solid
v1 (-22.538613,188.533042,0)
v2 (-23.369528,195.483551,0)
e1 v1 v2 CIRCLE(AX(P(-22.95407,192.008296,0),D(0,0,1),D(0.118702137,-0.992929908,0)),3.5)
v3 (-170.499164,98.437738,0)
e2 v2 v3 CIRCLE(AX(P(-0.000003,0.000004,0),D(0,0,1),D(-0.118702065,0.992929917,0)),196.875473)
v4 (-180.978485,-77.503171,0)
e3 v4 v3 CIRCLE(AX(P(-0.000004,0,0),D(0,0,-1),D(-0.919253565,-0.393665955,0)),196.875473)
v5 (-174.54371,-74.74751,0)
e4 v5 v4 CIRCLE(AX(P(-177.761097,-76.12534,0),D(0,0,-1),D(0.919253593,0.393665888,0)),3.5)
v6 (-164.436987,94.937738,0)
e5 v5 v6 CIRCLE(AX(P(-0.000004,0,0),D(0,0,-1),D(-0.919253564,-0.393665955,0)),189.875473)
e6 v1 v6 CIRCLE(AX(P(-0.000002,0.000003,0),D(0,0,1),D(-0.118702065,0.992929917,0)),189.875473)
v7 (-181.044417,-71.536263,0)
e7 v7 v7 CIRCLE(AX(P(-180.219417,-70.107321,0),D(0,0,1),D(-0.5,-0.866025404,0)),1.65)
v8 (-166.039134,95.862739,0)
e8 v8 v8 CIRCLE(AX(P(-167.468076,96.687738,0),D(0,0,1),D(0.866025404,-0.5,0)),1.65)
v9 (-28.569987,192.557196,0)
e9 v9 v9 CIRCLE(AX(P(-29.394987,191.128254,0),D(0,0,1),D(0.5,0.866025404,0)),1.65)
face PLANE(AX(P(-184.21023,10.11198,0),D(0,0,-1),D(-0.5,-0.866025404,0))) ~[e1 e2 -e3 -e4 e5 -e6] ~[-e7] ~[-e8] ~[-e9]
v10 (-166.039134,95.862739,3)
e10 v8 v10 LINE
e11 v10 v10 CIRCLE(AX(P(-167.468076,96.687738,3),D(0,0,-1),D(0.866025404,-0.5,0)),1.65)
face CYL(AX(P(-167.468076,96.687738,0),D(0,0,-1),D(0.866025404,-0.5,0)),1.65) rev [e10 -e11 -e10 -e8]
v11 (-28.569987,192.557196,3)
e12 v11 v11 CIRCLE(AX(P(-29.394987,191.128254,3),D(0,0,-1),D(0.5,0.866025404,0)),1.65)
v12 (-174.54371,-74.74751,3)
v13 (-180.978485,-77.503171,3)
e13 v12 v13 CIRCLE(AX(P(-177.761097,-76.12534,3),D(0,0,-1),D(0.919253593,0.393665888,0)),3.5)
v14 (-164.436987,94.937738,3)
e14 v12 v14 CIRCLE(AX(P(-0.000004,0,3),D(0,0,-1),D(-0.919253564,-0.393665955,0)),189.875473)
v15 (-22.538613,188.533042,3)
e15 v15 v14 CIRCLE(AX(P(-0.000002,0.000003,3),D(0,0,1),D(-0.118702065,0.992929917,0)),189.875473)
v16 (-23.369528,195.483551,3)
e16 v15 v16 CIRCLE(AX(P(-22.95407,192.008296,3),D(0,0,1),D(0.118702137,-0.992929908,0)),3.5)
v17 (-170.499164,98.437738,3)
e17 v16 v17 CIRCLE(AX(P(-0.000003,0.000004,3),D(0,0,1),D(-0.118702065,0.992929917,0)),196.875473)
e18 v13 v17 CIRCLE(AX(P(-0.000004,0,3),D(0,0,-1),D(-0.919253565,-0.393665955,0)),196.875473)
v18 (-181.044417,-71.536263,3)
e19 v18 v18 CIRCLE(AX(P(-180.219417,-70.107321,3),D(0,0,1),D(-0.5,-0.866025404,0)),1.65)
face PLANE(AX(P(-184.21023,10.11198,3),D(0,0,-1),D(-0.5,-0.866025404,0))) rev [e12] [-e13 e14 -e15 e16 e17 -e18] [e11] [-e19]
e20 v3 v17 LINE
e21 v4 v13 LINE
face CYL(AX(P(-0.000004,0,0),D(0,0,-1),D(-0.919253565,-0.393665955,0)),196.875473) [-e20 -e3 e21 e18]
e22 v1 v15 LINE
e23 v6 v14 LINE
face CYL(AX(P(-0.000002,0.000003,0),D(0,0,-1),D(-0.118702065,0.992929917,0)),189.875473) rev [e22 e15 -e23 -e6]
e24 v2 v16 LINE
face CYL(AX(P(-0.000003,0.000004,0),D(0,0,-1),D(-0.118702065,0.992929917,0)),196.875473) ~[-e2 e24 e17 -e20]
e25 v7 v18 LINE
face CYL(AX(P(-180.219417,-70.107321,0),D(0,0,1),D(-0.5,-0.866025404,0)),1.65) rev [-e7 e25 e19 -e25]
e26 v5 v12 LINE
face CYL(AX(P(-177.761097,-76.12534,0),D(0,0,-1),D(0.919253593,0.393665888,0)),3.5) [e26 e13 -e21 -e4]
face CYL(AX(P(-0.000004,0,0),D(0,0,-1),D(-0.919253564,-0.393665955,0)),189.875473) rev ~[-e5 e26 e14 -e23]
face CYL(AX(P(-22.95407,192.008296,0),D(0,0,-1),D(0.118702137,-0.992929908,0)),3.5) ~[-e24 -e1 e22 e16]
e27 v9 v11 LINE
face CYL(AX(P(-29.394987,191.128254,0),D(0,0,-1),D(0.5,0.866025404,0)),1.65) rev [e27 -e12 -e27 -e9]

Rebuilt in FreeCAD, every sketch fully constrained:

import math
import FreeCAD as App
import Part
import Sketcher

doc = App.newDocument("Part")
params = doc.addObject("Spreadsheet::Sheet", "Params")
for row, (alias, value) in enumerate([
    ("sketch1_radius", "3.5 mm"),
    ("pad1_length", "3 mm"),
    ("sketch2_diameter", "3.3 mm"),
], start=1):
    params.set(f"A{row}", alias)
    params.set(f"B{row}", "=" + value)
    params.setAlias(f"B{row}", alias)

body = doc.addObject("PartDesign::Body", "Body")

# Sketch on XY plane
sketch1 = body.newObject("Sketcher::SketchObject", "Sketch")
sketch1.AttachmentSupport = (doc.getObject("XY_Plane"), [""])
sketch1.MapMode = "FlatFace"
sketch1.addGeometry(Part.ArcOfCircle(Part.Circle(App.Vector(0.000002, 0.000004, 0), App.Vector(0, 0, 1), 189.875473), math.radians(36.817201), math.radians(90.000001)), False)
sketch1.addGeometry(Part.ArcOfCircle(Part.Circle(App.Vector(154.807027, 115.882956, 0), App.Vector(0, 0, 1), 3.5), math.radians(-143.182795), math.radians(36.817205)), False)
sketch1.addGeometry(Part.ArcOfCircle(Part.Circle(App.Vector(0.000002, 0.000004, 0), App.Vector(0, 0, 1), 196.875473), math.radians(36.817201), math.radians(90.000001)), False)
sketch1.addGeometry(Part.LineSegment(App.Vector(0, 196.875477, 0), App.Vector(0, 189.875477, 0)), False)
sketch1.addConstraint(Sketcher.Constraint("Tangent", 0, 1, 1, 1))
sketch1.addConstraint(Sketcher.Constraint("Tangent", 1, 2, 2, 1))
sketch1.addConstraint(Sketcher.Constraint("Coincident", 2, 2, 3, 1))
sketch1.addConstraint(Sketcher.Constraint("Coincident", 3, 2, 0, 2))
sketch1.addConstraint(Sketcher.Constraint("Vertical", 3))
sketch1.addConstraint(Sketcher.Constraint("Coincident", 0, 3, -1, 1))
sketch1.addConstraint(Sketcher.Constraint("Coincident", 2, 3, -1, 1))
sketch1.addConstraint(Sketcher.Constraint("PointOnObject", 2, 2, -2))
sketch1.addConstraint(Sketcher.Constraint("Radius", 1, 3.5))
sketch1.addConstraint(Sketcher.Constraint("Radius", 0, 189.875473))
sketch1.addConstraint(Sketcher.Constraint("DistanceY", -1, 1, 1, 2, 117.98038))
sketch1.setExpression("Constraints[8]", "Params.sketch1_radius")
pad1 = body.newObject("PartDesign::Pad", "Pad")
pad1.Profile = sketch1
pad1.setExpression("Length", "Params.pad1_length")

# Sketch on XY plane
sketch2 = body.newObject("Sketcher::SketchObject", "Sketch001")
sketch2.AttachmentSupport = (doc.getObject("XY_Plane"), [""])
sketch2.MapMode = "FlatFace"
sketch2.addGeometry(Part.Circle(App.Vector(150.82443, 121.020933, 0), App.Vector(0, 0, 1), 1.65), False)
sketch2.addGeometry(Part.ArcOfCircle(Part.Circle(App.Vector(0, 193.375477, 0), App.Vector(0, 0, 1), 1.65), math.radians(-90), math.radians(90)), False)
sketch2.addGeometry(Part.LineSegment(App.Vector(0, 195.025477, 0), App.Vector(0, 191.725477, 0)), False)
sketch2.addConstraint(Sketcher.Constraint("Coincident", 1, 1, 2, 2))
sketch2.addConstraint(Sketcher.Constraint("Coincident", 2, 1, 1, 2))
sketch2.addConstraint(Sketcher.Constraint("Vertical", 2))
sketch2.addConstraint(Sketcher.Constraint("Equal", 0, 1))
sketch2.addConstraint(Sketcher.Constraint("PointOnObject", 1, 3, -2))
sketch2.addConstraint(Sketcher.Constraint("PointOnObject", 1, 1, -2))
sketch2.addConstraint(Sketcher.Constraint("Diameter", 0, 3.3))
sketch2.addConstraint(Sketcher.Constraint("DistanceX", -1, 1, 0, 3, 150.82443))
sketch2.addConstraint(Sketcher.Constraint("DistanceY", -1, 1, 0, 3, 121.020933))
sketch2.addConstraint(Sketcher.Constraint("DistanceY", -1, 1, 1, 3, 193.375477))
sketch2.setExpression("Constraints[6]", "Params.sketch2_diameter")
pocket1 = body.newObject("PartDesign::Pocket", "Pocket")
pocket1.Profile = sketch2
pocket1.Type = "ThroughAll"
pocket1.Midplane = True
doc.recompute()

mirrored = body.newObject("PartDesign::Mirrored", "Mirrored")
mirrored.Originals = [pad1, pocket1]
mirrored.MirrorPlane = (doc.getObject("YZ_Plane"), [""])
body.Tip = mirrored
body2 = doc.addObject("PartDesign::Body", "Body001")
doc.recompute()

body.Placement = App.Placement(App.Vector(0, 0, 0), App.Rotation(App.Vector(0, 0, 1), 60))
boolean = body2.newObject("PartDesign::Boolean", "Boolean")
boolean.Type = "Fuse"
boolean.addObjects([body])

doc.recompute()
